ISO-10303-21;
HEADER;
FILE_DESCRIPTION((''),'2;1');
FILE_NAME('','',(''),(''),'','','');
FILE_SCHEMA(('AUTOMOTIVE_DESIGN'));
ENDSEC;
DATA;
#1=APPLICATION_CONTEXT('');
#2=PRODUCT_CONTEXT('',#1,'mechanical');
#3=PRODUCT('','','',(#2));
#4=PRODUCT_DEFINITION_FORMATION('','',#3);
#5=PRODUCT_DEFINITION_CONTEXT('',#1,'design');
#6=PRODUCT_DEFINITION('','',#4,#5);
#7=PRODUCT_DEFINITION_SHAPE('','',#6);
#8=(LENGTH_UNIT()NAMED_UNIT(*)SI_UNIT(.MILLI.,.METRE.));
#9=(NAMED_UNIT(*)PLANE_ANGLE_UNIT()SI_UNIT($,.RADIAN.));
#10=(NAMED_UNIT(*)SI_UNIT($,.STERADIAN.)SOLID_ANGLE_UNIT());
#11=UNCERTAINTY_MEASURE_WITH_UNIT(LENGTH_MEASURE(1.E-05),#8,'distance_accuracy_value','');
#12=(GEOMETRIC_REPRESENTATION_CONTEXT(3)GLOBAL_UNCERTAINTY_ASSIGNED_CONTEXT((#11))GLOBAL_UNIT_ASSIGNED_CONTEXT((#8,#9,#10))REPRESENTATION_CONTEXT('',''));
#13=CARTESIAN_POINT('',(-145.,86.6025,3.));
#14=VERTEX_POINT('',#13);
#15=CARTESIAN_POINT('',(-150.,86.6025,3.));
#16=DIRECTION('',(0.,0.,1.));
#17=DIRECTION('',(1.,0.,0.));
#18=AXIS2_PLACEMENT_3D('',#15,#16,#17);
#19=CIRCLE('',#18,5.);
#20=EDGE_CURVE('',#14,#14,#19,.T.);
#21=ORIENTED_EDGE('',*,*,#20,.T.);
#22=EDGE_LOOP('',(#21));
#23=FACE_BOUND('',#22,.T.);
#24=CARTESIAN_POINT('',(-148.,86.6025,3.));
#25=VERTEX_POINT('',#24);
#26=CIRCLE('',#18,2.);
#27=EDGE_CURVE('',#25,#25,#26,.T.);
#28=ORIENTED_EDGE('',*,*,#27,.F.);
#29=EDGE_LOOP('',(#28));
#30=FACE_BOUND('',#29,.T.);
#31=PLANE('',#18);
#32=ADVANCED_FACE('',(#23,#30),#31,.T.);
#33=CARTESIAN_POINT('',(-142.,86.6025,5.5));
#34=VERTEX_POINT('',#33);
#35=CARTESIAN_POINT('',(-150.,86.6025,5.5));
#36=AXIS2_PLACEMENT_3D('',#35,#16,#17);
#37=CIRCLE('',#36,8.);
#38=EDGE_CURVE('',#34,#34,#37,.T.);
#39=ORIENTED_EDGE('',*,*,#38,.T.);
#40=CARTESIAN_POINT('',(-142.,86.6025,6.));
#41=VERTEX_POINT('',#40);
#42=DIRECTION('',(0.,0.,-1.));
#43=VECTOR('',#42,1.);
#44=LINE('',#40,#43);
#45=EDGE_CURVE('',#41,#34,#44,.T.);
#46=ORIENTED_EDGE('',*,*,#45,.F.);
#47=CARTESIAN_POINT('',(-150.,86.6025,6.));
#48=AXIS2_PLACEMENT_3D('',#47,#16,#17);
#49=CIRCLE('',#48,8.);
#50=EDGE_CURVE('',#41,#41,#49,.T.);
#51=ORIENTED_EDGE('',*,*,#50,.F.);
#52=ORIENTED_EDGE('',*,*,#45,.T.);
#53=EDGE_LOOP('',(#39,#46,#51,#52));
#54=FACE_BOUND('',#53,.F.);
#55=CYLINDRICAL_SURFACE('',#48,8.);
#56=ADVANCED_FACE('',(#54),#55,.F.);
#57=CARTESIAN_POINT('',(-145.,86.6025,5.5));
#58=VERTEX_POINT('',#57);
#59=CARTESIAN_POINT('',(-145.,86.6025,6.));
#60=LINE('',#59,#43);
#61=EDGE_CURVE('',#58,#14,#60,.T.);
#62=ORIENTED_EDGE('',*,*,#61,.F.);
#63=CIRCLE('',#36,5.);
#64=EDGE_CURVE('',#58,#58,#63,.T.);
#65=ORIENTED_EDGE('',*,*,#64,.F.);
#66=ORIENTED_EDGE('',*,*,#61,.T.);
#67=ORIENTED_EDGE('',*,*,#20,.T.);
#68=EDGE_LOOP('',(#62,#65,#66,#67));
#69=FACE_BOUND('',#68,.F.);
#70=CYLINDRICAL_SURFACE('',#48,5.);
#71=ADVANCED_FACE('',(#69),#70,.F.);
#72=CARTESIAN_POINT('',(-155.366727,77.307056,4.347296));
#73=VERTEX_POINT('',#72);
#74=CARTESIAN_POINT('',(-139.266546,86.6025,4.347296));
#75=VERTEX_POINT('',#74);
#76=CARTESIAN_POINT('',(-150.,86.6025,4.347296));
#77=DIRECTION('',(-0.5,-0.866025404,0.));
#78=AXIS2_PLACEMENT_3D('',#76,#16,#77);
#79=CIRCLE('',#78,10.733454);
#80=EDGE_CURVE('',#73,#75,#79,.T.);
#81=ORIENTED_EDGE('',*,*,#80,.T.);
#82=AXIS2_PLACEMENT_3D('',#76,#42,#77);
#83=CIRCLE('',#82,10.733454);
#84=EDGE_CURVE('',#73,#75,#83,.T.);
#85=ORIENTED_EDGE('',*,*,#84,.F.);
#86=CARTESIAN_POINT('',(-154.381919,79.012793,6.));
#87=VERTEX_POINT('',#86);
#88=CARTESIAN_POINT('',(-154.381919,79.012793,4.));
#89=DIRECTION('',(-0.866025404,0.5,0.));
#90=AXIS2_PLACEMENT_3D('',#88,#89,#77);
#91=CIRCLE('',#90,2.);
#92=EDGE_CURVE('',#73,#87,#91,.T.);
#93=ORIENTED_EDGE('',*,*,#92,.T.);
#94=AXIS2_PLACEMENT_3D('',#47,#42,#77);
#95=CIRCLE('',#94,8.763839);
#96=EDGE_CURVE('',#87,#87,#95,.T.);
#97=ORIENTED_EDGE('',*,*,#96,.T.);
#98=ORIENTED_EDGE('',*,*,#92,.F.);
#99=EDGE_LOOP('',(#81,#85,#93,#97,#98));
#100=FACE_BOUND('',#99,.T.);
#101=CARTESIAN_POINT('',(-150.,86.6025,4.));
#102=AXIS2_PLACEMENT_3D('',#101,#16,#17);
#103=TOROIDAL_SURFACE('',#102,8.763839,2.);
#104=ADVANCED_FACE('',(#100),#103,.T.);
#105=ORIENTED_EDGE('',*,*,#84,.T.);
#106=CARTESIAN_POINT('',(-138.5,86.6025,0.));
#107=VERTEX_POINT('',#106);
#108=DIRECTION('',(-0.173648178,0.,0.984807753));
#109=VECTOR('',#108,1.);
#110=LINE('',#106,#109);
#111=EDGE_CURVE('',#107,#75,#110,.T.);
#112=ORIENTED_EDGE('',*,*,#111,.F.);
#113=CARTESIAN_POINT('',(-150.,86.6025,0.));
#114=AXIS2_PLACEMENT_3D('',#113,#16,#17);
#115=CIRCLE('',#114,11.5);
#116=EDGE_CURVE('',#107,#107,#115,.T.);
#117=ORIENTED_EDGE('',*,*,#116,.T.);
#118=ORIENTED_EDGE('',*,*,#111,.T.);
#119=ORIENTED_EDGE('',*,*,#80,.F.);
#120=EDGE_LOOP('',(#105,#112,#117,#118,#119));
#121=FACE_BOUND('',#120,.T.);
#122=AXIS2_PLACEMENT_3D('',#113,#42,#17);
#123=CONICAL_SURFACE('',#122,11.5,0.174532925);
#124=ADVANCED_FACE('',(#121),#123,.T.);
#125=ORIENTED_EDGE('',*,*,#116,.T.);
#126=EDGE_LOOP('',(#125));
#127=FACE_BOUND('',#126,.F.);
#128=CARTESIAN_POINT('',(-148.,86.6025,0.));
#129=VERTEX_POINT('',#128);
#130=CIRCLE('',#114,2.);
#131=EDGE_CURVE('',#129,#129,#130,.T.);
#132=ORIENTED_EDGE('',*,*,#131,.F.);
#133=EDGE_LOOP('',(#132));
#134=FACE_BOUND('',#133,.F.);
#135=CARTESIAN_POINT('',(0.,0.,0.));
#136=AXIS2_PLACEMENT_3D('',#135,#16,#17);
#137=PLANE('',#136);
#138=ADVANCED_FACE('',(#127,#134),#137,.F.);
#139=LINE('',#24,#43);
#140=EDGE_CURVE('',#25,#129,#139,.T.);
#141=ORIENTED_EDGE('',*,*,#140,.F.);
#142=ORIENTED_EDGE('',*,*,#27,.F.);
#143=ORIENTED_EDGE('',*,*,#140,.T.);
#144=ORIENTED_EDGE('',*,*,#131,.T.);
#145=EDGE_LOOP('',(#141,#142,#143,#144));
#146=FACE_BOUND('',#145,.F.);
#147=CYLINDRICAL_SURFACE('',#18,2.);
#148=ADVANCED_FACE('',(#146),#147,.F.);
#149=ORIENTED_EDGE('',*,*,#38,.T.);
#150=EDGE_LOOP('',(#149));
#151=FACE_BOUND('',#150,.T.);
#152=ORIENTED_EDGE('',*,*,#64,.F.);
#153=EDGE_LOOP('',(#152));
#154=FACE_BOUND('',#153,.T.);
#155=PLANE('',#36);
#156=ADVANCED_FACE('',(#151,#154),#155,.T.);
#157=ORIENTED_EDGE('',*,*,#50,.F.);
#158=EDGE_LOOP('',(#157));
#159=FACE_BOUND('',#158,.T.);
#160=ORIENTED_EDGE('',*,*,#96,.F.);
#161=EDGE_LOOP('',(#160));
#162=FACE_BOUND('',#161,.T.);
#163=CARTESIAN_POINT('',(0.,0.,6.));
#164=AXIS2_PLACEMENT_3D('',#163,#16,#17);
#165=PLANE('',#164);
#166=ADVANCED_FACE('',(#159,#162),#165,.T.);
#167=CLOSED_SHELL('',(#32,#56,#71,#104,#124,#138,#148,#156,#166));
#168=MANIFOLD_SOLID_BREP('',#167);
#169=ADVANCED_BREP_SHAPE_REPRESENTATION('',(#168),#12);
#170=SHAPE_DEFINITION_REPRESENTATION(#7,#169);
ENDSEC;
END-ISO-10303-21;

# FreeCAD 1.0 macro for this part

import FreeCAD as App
import Part
import Sketcher
from FreeCAD import Vector


def edges_at(feature, points):
    """Names of the edges that pass closest to the given points."""
    edges = feature.Shape.Edges
    near = lambda p: min(range(len(edges)), key=lambda i: edges[i].distToShape(Part.Vertex(*p))[0])
    return sorted({f"Edge{near(p) + 1}" for p in points})

doc = App.newDocument("Part")
body = doc.addObject("PartDesign::Body", "Body")

# Sketch on XY plane
sketch1 = body.newObject("Sketcher::SketchObject", "Sketch")
sketch1.AttachmentSupport = (doc.getObject("XY_Plane"), [""])
sketch1.MapMode = "FlatFace"
sketch1.addGeometry(Part.Circle(Vector(-150, 87, 0), Vector(0, 0, 1), 12), False)
sketch1.addConstraint([
    Sketcher.Constraint("Diameter", 0, 23.0),
    Sketcher.Constraint("DistanceX", 0, 3, -1, 1, 150.0),
    Sketcher.Constraint("DistanceY", -1, 1, 0, 3, 86.6025),
])
pad1 = body.newObject("PartDesign::Pad", "Pad")
pad1.Profile = sketch1
pad1.Length = 6
pad1.TaperAngle = -10
doc.recompute()

fillet = body.newObject("PartDesign::Fillet", "Fillet")
fillet.Base = (pad1, edges_at(pad1, [(-160.442, 86.603, 6)]))
fillet.Radius = 2

# Sketch on XY plane
sketch2 = body.newObject("Sketcher::SketchObject", "Sketch001")
sketch2.AttachmentSupport = (doc.getObject("XY_Plane"), [""])
sketch2.MapMode = "FlatFace"
sketch2.AttachmentOffset = App.Placement(Vector(0, 0, 6), App.Rotation())
sketch2.addGeometry(Part.Circle(Vector(-150, 87, 0), Vector(0, 0, 1), 5), False)
sketch2.addConstraint([
    Sketcher.Constraint("Diameter", 0, 10.0),
    Sketcher.Constraint("DistanceX", 0, 3, -1, 1, 150.0),
    Sketcher.Constraint("DistanceY", -1, 1, 0, 3, 86.6025),
])
pocket1 = body.newObject("PartDesign::Pocket", "Pocket")
pocket1.Profile = sketch2
pocket1.Length = 3

# Sketch on XY plane
sketch3 = body.newObject("Sketcher::SketchObject", "Sketch002")
sketch3.AttachmentSupport = (doc.getObject("XY_Plane"), [""])
sketch3.MapMode = "FlatFace"
sketch3.AttachmentOffset = App.Placement(Vector(0, 0, 3), App.Rotation())
sketch3.addGeometry(Part.Circle(Vector(-150, 86.6, 0), Vector(0, 0, 1), 2), False)
sketch3.addConstraint([
    Sketcher.Constraint("Diameter", 0, 4.0),
    Sketcher.Constraint("DistanceX", 0, 3, -1, 1, 150.0),
    Sketcher.Constraint("DistanceY", -1, 1, 0, 3, 86.6025),
])
pocket2 = body.newObject("PartDesign::Pocket", "Pocket001")
pocket2.Profile = sketch3
pocket2.Length = 3

# Sketch on XY plane
sketch4 = body.newObject("Sketcher::SketchObject", "Sketch003")
sketch4.AttachmentSupport = (doc.getObject("XY_Plane"), [""])
sketch4.MapMode = "FlatFace"
sketch4.AttachmentOffset = App.Placement(Vector(0, 0, 6), App.Rotation())
sketch4.addGeometry([
    Part.Circle(Vector(-150, 87, 0), Vector(0, 0, 1), 8),
    Part.Circle(Vector(-150, 87, 0), Vector(0, 0, 1), 5),
], False)
sketch4.addConstraint([
    Sketcher.Constraint("Coincident", 1, 3, 0, 3),
    Sketcher.Constraint("Diameter", 0, 16.0),
    Sketcher.Constraint("Diameter", 1, 10.0),
    Sketcher.Constraint("DistanceX", 0, 3, -1, 1, 150.0),
    Sketcher.Constraint("DistanceY", -1, 1, 0, 3, 86.6025),
])
pocket3 = body.newObject("PartDesign::Pocket", "Pocket002")
pocket3.Profile = sketch4
pocket3.Length = 0.5

doc.recompute()
